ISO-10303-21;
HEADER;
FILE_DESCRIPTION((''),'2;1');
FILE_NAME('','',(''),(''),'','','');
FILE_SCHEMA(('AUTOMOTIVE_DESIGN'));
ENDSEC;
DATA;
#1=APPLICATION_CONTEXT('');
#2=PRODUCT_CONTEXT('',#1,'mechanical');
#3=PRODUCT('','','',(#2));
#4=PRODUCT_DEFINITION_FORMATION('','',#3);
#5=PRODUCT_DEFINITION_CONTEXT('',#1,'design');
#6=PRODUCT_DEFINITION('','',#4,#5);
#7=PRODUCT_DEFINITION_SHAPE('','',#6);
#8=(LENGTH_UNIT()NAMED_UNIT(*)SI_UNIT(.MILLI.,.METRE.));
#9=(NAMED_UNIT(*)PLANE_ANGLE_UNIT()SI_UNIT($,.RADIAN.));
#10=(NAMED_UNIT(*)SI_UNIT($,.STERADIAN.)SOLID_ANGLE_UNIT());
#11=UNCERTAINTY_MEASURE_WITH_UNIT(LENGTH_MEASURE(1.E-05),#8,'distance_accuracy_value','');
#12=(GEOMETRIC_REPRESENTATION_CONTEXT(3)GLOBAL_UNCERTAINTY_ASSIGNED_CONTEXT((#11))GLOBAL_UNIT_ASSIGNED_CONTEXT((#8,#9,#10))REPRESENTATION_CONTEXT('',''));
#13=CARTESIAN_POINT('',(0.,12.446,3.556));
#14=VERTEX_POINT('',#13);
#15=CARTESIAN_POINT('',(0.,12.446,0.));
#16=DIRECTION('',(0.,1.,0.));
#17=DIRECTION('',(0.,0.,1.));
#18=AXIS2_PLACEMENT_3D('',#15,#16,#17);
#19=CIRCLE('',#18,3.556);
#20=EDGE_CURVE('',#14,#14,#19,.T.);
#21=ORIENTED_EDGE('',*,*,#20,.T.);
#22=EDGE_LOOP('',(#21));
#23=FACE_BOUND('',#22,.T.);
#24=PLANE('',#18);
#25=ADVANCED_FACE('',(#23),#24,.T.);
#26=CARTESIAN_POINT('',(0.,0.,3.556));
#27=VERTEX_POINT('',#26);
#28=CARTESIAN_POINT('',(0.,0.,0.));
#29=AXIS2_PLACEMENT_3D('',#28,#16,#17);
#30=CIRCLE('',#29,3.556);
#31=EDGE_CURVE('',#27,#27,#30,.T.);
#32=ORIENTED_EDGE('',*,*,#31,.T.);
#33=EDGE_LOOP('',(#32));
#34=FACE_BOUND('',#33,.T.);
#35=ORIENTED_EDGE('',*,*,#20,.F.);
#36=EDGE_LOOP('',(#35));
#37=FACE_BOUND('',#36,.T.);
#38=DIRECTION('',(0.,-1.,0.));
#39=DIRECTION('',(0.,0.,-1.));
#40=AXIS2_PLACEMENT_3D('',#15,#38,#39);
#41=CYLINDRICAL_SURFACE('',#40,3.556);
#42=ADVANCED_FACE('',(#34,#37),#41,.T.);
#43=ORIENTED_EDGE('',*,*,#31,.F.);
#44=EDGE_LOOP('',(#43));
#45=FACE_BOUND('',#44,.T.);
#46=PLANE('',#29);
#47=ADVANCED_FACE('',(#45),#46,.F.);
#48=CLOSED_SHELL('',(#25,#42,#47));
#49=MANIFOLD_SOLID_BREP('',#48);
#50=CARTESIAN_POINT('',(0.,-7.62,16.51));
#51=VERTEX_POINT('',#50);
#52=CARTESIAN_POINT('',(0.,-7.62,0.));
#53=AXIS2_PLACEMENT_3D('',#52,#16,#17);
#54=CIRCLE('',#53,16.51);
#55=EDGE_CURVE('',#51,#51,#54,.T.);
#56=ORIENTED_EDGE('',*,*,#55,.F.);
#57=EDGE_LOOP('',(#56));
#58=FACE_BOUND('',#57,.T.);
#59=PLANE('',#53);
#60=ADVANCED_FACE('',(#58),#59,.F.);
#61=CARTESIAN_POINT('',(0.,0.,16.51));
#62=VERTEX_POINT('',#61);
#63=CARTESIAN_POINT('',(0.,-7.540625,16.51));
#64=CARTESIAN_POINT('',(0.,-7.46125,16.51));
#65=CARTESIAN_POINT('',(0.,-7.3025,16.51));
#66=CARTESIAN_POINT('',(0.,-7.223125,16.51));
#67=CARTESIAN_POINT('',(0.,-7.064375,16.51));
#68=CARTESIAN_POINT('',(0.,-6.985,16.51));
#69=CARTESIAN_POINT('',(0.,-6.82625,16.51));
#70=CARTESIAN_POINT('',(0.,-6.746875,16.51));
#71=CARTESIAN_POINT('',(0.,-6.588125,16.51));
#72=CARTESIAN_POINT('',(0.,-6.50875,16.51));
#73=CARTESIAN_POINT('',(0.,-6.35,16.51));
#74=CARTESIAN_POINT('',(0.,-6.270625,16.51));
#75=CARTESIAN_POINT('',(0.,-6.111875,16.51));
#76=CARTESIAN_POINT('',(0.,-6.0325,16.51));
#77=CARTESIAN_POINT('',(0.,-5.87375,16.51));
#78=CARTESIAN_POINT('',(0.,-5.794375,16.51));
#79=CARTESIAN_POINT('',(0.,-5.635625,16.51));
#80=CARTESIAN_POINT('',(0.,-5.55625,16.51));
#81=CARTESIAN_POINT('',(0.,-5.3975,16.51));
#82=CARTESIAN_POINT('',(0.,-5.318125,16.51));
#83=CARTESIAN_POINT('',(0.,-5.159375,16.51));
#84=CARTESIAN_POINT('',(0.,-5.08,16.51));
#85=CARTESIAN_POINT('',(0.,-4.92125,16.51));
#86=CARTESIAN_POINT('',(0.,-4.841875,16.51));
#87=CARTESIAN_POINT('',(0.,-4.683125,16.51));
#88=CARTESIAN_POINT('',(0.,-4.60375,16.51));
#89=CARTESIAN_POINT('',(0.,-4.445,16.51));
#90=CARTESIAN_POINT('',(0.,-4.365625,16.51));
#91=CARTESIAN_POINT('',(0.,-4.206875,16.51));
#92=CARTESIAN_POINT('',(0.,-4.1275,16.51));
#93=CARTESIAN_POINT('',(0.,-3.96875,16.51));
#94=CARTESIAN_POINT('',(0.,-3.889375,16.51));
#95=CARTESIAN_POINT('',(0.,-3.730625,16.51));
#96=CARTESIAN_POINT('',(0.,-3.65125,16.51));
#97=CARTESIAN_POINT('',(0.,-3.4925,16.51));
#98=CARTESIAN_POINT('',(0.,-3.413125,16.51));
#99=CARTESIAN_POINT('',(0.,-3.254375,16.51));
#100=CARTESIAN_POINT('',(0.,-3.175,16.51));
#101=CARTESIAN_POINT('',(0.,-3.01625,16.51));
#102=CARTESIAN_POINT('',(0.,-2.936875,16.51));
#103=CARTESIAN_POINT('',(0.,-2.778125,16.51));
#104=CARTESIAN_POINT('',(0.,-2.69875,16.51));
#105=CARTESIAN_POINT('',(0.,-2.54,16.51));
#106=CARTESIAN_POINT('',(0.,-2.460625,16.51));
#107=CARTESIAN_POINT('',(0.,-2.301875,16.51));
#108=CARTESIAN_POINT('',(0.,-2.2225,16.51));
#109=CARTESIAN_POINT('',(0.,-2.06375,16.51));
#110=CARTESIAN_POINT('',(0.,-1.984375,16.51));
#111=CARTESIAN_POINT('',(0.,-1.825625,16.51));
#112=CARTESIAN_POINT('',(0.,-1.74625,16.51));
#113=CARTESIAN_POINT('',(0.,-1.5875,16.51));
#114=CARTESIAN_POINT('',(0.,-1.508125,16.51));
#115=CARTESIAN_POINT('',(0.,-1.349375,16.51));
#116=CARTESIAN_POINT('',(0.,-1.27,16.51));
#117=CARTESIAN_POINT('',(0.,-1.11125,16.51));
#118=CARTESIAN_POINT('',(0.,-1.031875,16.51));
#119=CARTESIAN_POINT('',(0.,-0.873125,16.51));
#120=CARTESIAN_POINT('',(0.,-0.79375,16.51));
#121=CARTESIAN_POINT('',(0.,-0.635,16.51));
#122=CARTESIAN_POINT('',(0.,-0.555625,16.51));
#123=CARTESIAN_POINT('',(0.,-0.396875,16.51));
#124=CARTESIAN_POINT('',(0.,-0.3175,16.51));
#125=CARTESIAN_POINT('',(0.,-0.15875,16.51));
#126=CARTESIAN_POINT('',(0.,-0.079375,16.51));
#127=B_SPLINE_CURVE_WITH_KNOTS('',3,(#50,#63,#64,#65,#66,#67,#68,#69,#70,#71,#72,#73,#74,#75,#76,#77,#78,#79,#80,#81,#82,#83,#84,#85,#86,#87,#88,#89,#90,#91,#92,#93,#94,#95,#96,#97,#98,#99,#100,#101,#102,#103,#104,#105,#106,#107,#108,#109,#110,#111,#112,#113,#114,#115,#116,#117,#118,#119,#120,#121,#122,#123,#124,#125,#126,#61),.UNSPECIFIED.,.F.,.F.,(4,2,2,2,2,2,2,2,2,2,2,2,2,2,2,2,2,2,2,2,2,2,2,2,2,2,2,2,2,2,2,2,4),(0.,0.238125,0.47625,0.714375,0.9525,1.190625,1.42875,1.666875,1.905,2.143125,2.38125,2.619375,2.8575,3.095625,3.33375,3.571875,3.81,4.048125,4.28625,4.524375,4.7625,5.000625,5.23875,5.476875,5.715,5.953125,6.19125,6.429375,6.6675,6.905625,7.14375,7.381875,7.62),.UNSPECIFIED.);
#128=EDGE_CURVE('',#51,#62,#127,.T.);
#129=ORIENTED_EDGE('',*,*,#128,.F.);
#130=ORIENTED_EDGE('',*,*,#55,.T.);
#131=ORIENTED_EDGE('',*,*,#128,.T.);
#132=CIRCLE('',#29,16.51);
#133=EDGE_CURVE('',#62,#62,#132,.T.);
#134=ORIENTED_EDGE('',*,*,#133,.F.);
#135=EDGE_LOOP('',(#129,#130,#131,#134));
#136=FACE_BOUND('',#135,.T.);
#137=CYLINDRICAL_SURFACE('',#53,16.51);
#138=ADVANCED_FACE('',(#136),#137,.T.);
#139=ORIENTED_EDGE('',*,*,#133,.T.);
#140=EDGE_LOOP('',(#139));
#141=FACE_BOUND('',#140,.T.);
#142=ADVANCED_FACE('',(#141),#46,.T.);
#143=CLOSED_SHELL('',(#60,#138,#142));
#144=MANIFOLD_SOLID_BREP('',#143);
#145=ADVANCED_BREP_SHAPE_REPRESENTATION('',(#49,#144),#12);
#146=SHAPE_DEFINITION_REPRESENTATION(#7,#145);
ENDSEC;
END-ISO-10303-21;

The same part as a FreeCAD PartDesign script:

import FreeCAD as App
import Part
import Sketcher
from FreeCAD import Vector
Q = App.Units.Quantity

doc = App.newDocument("Part")
body = doc.addObject("PartDesign::Body", "Body")

# Sketch on XZ plane
sketch1 = doc.addObject("Sketcher::SketchObject", "Sketch")
body.addObject(sketch1)
sketch1.AttachmentSupport = (doc.XZ_Plane, [""])
sketch1.MapMode = "FlatFace"
sketch1.addGeometry(Part.Circle(Vector(0, 0, 0), Vector(0, 0, 1), 3.6), False)
sketch1.addConstraint(Sketcher.Constraint("Coincident", 0, 3, -1, 1))
sketch1.addConstraint(Sketcher.Constraint("Diameter", 0, Q("0.28 in")))
pad1 = doc.addObject("PartDesign::Pad", "Pad")
body.addObject(pad1)
pad1.Profile = sketch1
pad1.Length = Q("0.49 in")
pad1.Reversed = True
body2 = doc.addObject("PartDesign::Body", "Body001")

# Sketch on XZ plane
sketch2 = doc.addObject("Sketcher::SketchObject", "Sketch001")
body2.addObject(sketch2)
sketch2.AttachmentSupport = (doc.getObject("XZ_Plane001"), [""])
sketch2.MapMode = "FlatFace"
sketch2.addGeometry(Part.Circle(Vector(0, 0, 0), Vector(0, 0, 1), 17), False)
sketch2.addConstraint(Sketcher.Constraint("Coincident", 0, 3, -1, 1))
sketch2.addConstraint(Sketcher.Constraint("Diameter", 0, Q("1.3 in")))
pad2 = doc.addObject("PartDesign::Pad", "Pad001")
body2.addObject(pad2)
pad2.Profile = sketch2
pad2.Length = Q("0.3 in")

doc.recompute()
